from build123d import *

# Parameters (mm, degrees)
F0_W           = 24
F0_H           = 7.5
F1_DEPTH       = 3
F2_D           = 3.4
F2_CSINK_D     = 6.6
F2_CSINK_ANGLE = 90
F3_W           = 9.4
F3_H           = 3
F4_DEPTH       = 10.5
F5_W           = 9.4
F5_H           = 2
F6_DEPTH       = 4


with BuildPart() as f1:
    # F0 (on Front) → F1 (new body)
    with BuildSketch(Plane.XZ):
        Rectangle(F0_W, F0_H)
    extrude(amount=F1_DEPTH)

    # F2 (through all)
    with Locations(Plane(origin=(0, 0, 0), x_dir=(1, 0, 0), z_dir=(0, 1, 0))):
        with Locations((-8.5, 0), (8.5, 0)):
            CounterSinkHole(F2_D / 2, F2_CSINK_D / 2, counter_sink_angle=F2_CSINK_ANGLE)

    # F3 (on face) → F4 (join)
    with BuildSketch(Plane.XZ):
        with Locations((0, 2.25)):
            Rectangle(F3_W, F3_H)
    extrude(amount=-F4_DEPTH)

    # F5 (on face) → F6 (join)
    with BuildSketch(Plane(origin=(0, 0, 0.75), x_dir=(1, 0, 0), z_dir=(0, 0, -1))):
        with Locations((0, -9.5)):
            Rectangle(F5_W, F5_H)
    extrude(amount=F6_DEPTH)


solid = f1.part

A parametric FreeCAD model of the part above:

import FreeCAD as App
import Part
import Sketcher

V = App.Vector
Q = App.Units.Quantity


def add_polygon(sketch, points):
    """Adds a closed chain of lines whose ends are joined by coincident constraints."""
    first, n = sketch.GeometryCount, len(points)
    for a, b in zip(points, points[1:] + points[:1]):
        sketch.addGeometry(Part.LineSegment(App.Vector(*a, 0), App.Vector(*b, 0)), False)
    for i in range(n):
        sketch.addConstraint(Sketcher.Constraint("Coincident", first + i, 2, first + (i + 1) % n, 1))

doc = App.newDocument("Part")
body = doc.addObject("PartDesign::Body", "Body")

sketch1 = body.newObject("Sketcher::SketchObject", "Sketch")
sketch1.AttachmentSupport = (doc.getObject("XZ_Plane"), [""])
sketch1.MapMode = "FlatFace"
add_polygon(sketch1, [(-12, 3.75), (-12, -3.75), (12, -3.75), (12, 3.75)])
sketch1.addConstraint([
    Sketcher.Constraint("Vertical", 0),
    Sketcher.Constraint("Horizontal", 1),
    Sketcher.Constraint("Vertical", 2),
    Sketcher.Constraint("Horizontal", 3),
    Sketcher.Constraint("Symmetric", 0, 2, 2, 2, -1, 1),
    Sketcher.Constraint("DistanceX", 1, 1, 1, 2, Q("24 mm")),
    Sketcher.Constraint("DistanceY", 0, 2, 0, 1, Q("7.5 mm")),
])
pad1 = body.newObject("PartDesign::Pad", "Pad")
pad1.Profile = sketch1
pad1.Length = 3

sketch2 = body.newObject("Sketcher::SketchObject", "Sketch001")
sketch2.AttachmentSupport = (doc.getObject("XZ_Plane"), [""])
sketch2.MapMode = "FlatFace"
sketch2.addGeometry([
    Part.Circle(V(-8.5, 0, 0), V(0, 0, 1), 1.7),
    Part.Circle(V(8.5, 0, 0), V(0, 0, 1), 1.7),
], False)
sketch2.addConstraint([
    Sketcher.Constraint("Equal", 0, 1),
    Sketcher.Constraint("Symmetric", 0, 3, 1, 3, -1, 1),
    Sketcher.Constraint("PointOnObject", 0, 3, -1),
    Sketcher.Constraint("Diameter", 0, Q("3.4 mm")),
    Sketcher.Constraint("DistanceX", 0, 3, 1, 3, Q("17 mm")),
])
doc.recompute()
hole = body.newObject("PartDesign::Hole", "Hole")
hole.Profile = sketch2
hole.ThreadType = "None"
hole.Diameter = 3.4
hole.DepthType = "ThroughAll"
hole.HoleCutType = "Countersink"
hole.HoleCutDiameter = 6.6
hole.HoleCutCountersinkAngle = 90
hole.Reversed = True

sketch3 = body.newObject("Sketcher::SketchObject", "Sketch002")
sketch3.AttachmentSupport = (doc.getObject("XZ_Plane"), [""])
sketch3.MapMode = "FlatFace"
add_polygon(sketch3, [(-4.7, 3.75), (-4.7, 0.75), (4.7, 0.75), (4.7, 3.75)])
sketch3.addConstraint([
    Sketcher.Constraint("Vertical", 0),
    Sketcher.Constraint("Horizontal", 1),
    Sketcher.Constraint("Vertical", 2),
    Sketcher.Constraint("Horizontal", 3),
    Sketcher.Constraint("DistanceY", 0, 2, 0, 1, Q("3 mm")),
    Sketcher.Constraint("DistanceX", 1, 1, 1, 2, Q("9.4 mm")),
    Sketcher.Constraint("DistanceX", 0, 2, -1, 1, Q("4.7 mm")),
    Sketcher.Constraint("DistanceY", -1, 1, 0, 2, Q("0.75 mm")),
])
pad2 = body.newObject("PartDesign::Pad", "Pad001")
pad2.Profile = sketch3
pad2.Length = 10.5
pad2.Reversed = True

sketch4 = body.newObject("Sketcher::SketchObject", "Sketch003")
sketch4.AttachmentSupport = (doc.getObject("XY_Plane"), [""])
sketch4.MapMode = "FlatFace"
sketch4.AttachmentOffset = App.Placement(V(0, 0, 0.75), App.Rotation())
add_polygon(sketch4, [(-4.7, 8.5), (-4.7, 10.5), (4.7, 10.5), (4.7, 8.5)])
sketch4.addConstraint([
    Sketcher.Constraint("Vertical", 0),
    Sketcher.Constraint("Horizontal", 1),
    Sketcher.Constraint("Vertical", 2),
    Sketcher.Constraint("Horizontal", 3),
    Sketcher.Constraint("DistanceY", 0, 1, 0, 2, Q("2 mm")),
    Sketcher.Constraint("DistanceX", 1, 1, 1, 2, Q("9.4 mm")),
    Sketcher.Constraint("DistanceX", 0, 2, -1, 1, Q("4.7 mm")),
    Sketcher.Constraint("DistanceY", -1, 1, 0, 2, Q("10.5 mm")),
])
pad3 = body.newObject("PartDesign::Pad", "Pad002")
pad3.Profile = sketch4
pad3.Length = 4
pad3.Reversed = True

doc.recompute()
